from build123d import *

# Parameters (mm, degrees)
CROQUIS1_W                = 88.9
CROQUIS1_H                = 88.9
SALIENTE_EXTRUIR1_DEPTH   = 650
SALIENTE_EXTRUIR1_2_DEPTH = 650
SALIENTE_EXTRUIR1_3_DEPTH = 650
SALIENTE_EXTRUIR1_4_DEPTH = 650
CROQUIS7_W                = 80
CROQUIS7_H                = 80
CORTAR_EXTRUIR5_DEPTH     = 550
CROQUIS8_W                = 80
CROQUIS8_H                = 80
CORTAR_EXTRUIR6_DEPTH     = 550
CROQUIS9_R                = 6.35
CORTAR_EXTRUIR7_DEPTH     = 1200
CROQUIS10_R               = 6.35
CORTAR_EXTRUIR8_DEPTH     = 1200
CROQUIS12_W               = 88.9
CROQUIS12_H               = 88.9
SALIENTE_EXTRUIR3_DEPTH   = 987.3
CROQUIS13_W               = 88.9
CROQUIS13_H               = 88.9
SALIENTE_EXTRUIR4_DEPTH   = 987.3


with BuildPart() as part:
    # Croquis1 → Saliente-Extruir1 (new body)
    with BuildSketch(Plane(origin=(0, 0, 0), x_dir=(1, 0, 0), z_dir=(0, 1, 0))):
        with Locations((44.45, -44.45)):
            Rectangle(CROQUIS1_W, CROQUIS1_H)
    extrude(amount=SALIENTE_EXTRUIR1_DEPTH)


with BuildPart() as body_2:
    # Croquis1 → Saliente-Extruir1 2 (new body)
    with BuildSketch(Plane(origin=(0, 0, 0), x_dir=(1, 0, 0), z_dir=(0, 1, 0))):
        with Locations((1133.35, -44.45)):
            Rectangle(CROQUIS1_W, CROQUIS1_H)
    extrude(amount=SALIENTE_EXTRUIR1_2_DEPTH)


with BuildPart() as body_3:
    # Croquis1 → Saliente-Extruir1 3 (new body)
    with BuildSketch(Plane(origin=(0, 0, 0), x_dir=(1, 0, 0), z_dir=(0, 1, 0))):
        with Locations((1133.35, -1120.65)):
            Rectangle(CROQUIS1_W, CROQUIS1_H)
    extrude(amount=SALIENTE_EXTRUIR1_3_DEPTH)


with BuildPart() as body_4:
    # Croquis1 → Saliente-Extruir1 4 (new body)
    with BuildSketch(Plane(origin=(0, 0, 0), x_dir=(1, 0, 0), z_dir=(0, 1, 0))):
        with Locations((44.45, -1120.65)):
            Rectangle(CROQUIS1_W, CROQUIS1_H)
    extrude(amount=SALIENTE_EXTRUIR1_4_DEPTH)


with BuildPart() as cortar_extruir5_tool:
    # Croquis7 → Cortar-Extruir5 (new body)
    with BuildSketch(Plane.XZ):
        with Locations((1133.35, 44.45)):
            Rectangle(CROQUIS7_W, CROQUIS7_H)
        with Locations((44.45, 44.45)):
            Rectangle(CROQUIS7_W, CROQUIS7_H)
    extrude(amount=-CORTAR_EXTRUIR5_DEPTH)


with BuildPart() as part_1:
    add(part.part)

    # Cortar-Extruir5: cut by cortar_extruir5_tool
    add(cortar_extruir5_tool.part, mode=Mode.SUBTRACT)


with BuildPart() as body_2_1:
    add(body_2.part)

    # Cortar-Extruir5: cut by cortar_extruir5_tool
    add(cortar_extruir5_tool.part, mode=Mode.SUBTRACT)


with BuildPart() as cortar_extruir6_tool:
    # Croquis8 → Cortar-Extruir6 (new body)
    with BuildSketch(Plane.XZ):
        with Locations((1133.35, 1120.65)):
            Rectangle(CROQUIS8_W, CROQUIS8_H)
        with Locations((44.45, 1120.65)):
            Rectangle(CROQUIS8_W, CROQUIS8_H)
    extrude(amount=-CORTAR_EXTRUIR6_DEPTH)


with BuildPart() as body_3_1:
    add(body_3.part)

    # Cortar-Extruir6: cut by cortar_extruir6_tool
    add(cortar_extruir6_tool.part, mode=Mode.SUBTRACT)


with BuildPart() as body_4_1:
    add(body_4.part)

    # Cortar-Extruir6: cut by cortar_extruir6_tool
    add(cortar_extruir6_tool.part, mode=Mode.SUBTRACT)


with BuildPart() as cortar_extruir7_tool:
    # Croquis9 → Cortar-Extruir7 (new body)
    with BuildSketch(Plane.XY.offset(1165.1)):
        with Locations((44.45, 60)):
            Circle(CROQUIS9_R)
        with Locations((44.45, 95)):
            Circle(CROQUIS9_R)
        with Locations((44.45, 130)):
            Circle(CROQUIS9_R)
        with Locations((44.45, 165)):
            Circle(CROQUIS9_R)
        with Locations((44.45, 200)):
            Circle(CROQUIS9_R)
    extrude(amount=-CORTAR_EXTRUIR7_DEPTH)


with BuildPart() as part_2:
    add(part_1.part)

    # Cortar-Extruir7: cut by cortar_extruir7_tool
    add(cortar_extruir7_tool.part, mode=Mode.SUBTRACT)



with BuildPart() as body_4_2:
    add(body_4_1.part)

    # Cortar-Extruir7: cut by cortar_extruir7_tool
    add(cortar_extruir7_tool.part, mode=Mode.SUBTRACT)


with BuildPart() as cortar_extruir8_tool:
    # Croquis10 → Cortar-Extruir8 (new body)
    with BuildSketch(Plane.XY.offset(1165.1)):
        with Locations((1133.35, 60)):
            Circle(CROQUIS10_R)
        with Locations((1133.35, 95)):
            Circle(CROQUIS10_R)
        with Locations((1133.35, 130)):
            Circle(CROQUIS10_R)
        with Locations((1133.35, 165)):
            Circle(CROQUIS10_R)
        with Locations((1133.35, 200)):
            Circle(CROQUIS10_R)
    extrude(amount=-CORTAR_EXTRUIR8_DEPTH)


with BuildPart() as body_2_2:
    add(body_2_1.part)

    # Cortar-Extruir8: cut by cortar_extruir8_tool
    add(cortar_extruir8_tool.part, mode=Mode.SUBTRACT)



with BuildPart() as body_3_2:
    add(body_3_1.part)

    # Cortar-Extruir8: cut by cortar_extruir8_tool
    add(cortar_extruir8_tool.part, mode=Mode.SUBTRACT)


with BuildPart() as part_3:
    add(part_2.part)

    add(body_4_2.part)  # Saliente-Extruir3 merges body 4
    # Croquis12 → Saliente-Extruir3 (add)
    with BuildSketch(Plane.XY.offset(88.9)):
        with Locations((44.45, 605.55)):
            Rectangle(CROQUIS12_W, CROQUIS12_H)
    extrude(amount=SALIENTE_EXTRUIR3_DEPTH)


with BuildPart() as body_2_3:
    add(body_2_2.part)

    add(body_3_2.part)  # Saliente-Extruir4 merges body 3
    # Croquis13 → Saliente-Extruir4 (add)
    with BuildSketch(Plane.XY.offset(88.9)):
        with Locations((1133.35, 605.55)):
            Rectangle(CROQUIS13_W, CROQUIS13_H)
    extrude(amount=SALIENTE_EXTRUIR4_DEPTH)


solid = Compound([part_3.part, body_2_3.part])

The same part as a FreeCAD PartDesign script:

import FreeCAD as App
import Part
import Sketcher
from FreeCAD import Vector


def add_polygon(sketch, points):
    """Adds a closed chain of lines whose ends are joined by coincident constraints."""
    first, n = sketch.GeometryCount, len(points)
    for a, b in zip(points, points[1:] + points[:1]):
        sketch.addGeometry(Part.LineSegment(App.Vector(*a, 0), App.Vector(*b, 0)), False)
    for i in range(n):
        sketch.addConstraint(Sketcher.Constraint("Coincident", first + i, 2, first + (i + 1) % n, 1))

doc = App.newDocument("Part")
params = doc.addObject("Spreadsheet::Sheet", "Params")
for row, (alias, value) in enumerate([
    ("sketch1_width", "88.9 mm"),
    ("pad1_length", "650 mm"),
    ("sketch2_width", "88.9 mm"),
    ("pad2_length", "650 mm"),
    ("sketch3_width", "88.9 mm"),
    ("pad3_length", "650 mm"),
    ("sketch4_width", "88.9 mm"),
    ("pad4_length", "650 mm"),
    ("sketch5_width", "80 mm"),
    ("pad5_length", "550 mm"),
    ("sketch6_width", "80 mm"),
    ("pad6_length", "550 mm"),
    ("sketch7_diameter", "12.7 mm"),
    ("pad7_length", "1200 mm"),
    ("sketch8_diameter", "12.7 mm"),
    ("pad8_length", "1200 mm"),
    ("sketch9_width", "88.9 mm"),
    ("pad9_length", "987.3 mm"),
    ("sketch10_width", "88.9 mm"),
    ("pad10_length", "987.3 mm"),
], start=1):
    params.set(f"A{row}", alias)
    params.set(f"B{row}", "=" + value)
    params.setAlias(f"B{row}", alias)

body = doc.addObject("PartDesign::Body", "Body")

# Sketch on XZ plane
sketch1 = doc.addObject("Sketcher::SketchObject", "Sketch")
body.addObject(sketch1)
sketch1.AttachmentSupport = (doc.XZ_Plane, [""])
sketch1.MapMode = "FlatFace"
add_polygon(sketch1, [(0, 0), (0, 89), (89, 89), (89, 0)])  # lines 0-3
sketch1.addConstraint([
    Sketcher.Constraint("Vertical", 0),
    Sketcher.Constraint("Horizontal", 1),
    Sketcher.Constraint("Vertical", 2),
    Sketcher.Constraint("Horizontal", 3),
    Sketcher.Constraint("Coincident", 3, 2, -1, 1),
    Sketcher.Constraint("Equal", 3, 0),
    Sketcher.Constraint("DistanceX", 1, 1, 1, 2, 88.9),
])
sketch1.setExpression("Constraints[10]", "Params.sketch1_width")
pad1 = doc.addObject("PartDesign::Pad", "Pad")
body.addObject(pad1)
pad1.Profile = sketch1
pad1.setExpression("Length", "Params.pad1_length")
pad1.Reversed = True
body2 = doc.addObject("PartDesign::Body", "Body001")

# Sketch on XZ plane
sketch2 = doc.addObject("Sketcher::SketchObject", "Sketch001")
body2.addObject(sketch2)
sketch2.AttachmentSupport = (doc.getObject("XZ_Plane001"), [""])
sketch2.MapMode = "FlatFace"
add_polygon(sketch2, [(1089, 0), (1089, 89), (1178, 89), (1178, 0)])  # lines 0-3
sketch2.addConstraint([
    Sketcher.Constraint("Vertical", 0),
    Sketcher.Constraint("Horizontal", 1),
    Sketcher.Constraint("Vertical", 2),
    Sketcher.Constraint("Horizontal", 3),
    Sketcher.Constraint("PointOnObject", 2, 2, -1),
    Sketcher.Constraint("Equal", 3, 0),
    Sketcher.Constraint("DistanceX", 1, 1, 1, 2, 88.9),
    Sketcher.Constraint("DistanceX", -1, 1, 0, 2, 1088.9),
])
sketch2.setExpression("Constraints[10]", "Params.sketch2_width")
pad2 = doc.addObject("PartDesign::Pad", "Pad001")
body2.addObject(pad2)
pad2.Profile = sketch2
pad2.setExpression("Length", "Params.pad2_length")
pad2.Reversed = True
body3 = doc.addObject("PartDesign::Body", "Body002")

# Sketch on XZ plane
sketch3 = doc.addObject("Sketcher::SketchObject", "Sketch002")
body3.addObject(sketch3)
sketch3.AttachmentSupport = (doc.getObject("XZ_Plane002"), [""])
sketch3.MapMode = "FlatFace"
add_polygon(sketch3, [(1089, 1076), (1089, 1165), (1178, 1165), (1178, 1076)])  # lines 0-3
sketch3.addConstraint([
    Sketcher.Constraint("Vertical", 0),
    Sketcher.Constraint("Horizontal", 1),
    Sketcher.Constraint("Vertical", 2),
    Sketcher.Constraint("Horizontal", 3),
    Sketcher.Constraint("Equal", 3, 0),
    Sketcher.Constraint("DistanceX", 1, 1, 1, 2, 88.9),
    Sketcher.Constraint("DistanceX", -1, 1, 0, 2, 1088.9),
    Sketcher.Constraint("DistanceY", -1, 1, 0, 2, 1165.1),
])
sketch3.setExpression("Constraints[9]", "Params.sketch3_width")
pad3 = doc.addObject("PartDesign::Pad", "Pad002")
body3.addObject(pad3)
pad3.Profile = sketch3
pad3.setExpression("Length", "Params.pad3_length")
pad3.Reversed = True
body4 = doc.addObject("PartDesign::Body", "Body003")

# Sketch on XZ plane
sketch4 = doc.addObject("Sketcher::SketchObject", "Sketch003")
body4.addObject(sketch4)
sketch4.AttachmentSupport = (doc.getObject("XZ_Plane003"), [""])
sketch4.MapMode = "FlatFace"
add_polygon(sketch4, [(0, 1076), (0, 1165), (89, 1165), (89, 1076)])  # lines 0-3
sketch4.addConstraint([
    Sketcher.Constraint("Vertical", 0),
    Sketcher.Constraint("Horizontal", 1),
    Sketcher.Constraint("Vertical", 2),
    Sketcher.Constraint("Horizontal", 3),
    Sketcher.Constraint("PointOnObject", 0, 2, -2),
    Sketcher.Constraint("Equal", 3, 0),
    Sketcher.Constraint("DistanceX", 1, 1, 1, 2, 88.9),
    Sketcher.Constraint("DistanceY", -1, 1, 0, 2, 1165.1),
])
sketch4.setExpression("Constraints[10]", "Params.sketch4_width")
pad4 = doc.addObject("PartDesign::Pad", "Pad003")
body4.addObject(pad4)
pad4.Profile = sketch4
pad4.setExpression("Length", "Params.pad4_length")
pad4.Reversed = True
body5 = doc.addObject("PartDesign::Body", "Body004")
body5.AllowCompound = True

# Sketch on XZ plane
sketch5 = doc.addObject("Sketcher::SketchObject", "Sketch004")
body5.addObject(sketch5)
sketch5.AttachmentSupport = (doc.getObject("XZ_Plane004"), [""])
sketch5.MapMode = "FlatFace"
add_polygon(sketch5, [(1093, 84), (1093, 4), (1173, 4), (1173, 84)])  # lines 0-3
add_polygon(sketch5, [(4, 84), (4, 4), (84, 4), (84, 84)])  # lines 4-7
sketch5.addConstraint([
    Sketcher.Constraint("Vertical", 0),
    Sketcher.Constraint("Horizontal", 1),
    Sketcher.Constraint("Vertical", 2),
    Sketcher.Constraint("Horizontal", 3),
    Sketcher.Constraint("Vertical", 4),
    Sketcher.Constraint("Horizontal", 5),
    Sketcher.Constraint("Vertical", 6),
    Sketcher.Constraint("Horizontal", 7),
    Sketcher.Constraint("Horizontal", 1, 2, 4, 2),
    Sketcher.Constraint("Horizontal", 3, 2, 6, 2),
    Sketcher.Constraint("Equal", 3, 5),
    Sketcher.Constraint("Equal", 7, 0),
    Sketcher.Constraint("DistanceX", 1, 1, 1, 2, 80.0),
    Sketcher.Constraint("DistanceX", 4, 2, 0, 2, 1088.9),
    Sketcher.Constraint("DistanceX", -1, 1, 0, 2, 1093.35),
    Sketcher.Constraint("DistanceY", -1, 1, 0, 2, 4.45),
])
sketch5.setExpression("Constraints[20]", "Params.sketch5_width")
pad5 = doc.addObject("PartDesign::Pad", "Pad004")
body5.addObject(pad5)
pad5.Profile = sketch5
pad5.setExpression("Length", "Params.pad5_length")
pad5.Reversed = True
doc.recompute()

body6 = doc.addObject("PartDesign::Body", "Body005")
body6.BaseFeature = body5
boolean = doc.addObject("PartDesign::Boolean", "Boolean")
body.addObject(boolean)
boolean.Type = "Cut"
boolean.addObjects([body6])
doc.recompute()

boolean2 = doc.addObject("PartDesign::Boolean", "Boolean001")
body2.addObject(boolean2)
boolean2.Type = "Cut"
boolean2.addObjects([body5])
body7 = doc.addObject("PartDesign::Body", "Body006")
body7.AllowCompound = True

# Sketch on XZ plane
sketch6 = doc.addObject("Sketcher::SketchObject", "Sketch005")
body7.addObject(sketch6)
sketch6.AttachmentSupport = (doc.getObject("XZ_Plane006"), [""])
sketch6.MapMode = "FlatFace"
add_polygon(sketch6, [(1093, 1161), (1093, 1081), (1173, 1081), (1173, 1161)])  # lines 0-3
add_polygon(sketch6, [(4, 1161), (4, 1081), (84, 1081), (84, 1161)])  # lines 4-7
sketch6.addConstraint([
    Sketcher.Constraint("Vertical", 0),
    Sketcher.Constraint("Horizontal", 1),
    Sketcher.Constraint("Vertical", 2),
    Sketcher.Constraint("Horizontal", 3),
    Sketcher.Constraint("Vertical", 4),
    Sketcher.Constraint("Horizontal", 5),
    Sketcher.Constraint("Vertical", 6),
    Sketcher.Constraint("Horizontal", 7),
    Sketcher.Constraint("Horizontal", 1, 2, 4, 2),
    Sketcher.Constraint("Horizontal", 3, 2, 6, 2),
    Sketcher.Constraint("Equal", 3, 5),
    Sketcher.Constraint("Equal", 7, 0),
    Sketcher.Constraint("DistanceX", 1, 1, 1, 2, 80.0),
    Sketcher.Constraint("DistanceX", 4, 2, 0, 2, 1088.9),
    Sketcher.Constraint("DistanceX", -1, 1, 0, 2, 1093.35),
    Sketcher.Constraint("DistanceY", -1, 1, 0, 2, 1080.65),
])
sketch6.setExpression("Constraints[20]", "Params.sketch6_width")
pad6 = doc.addObject("PartDesign::Pad", "Pad005")
body7.addObject(pad6)
pad6.Profile = sketch6
pad6.setExpression("Length", "Params.pad6_length")
pad6.Reversed = True
doc.recompute()

body8 = doc.addObject("PartDesign::Body", "Body007")
body8.BaseFeature = body7
boolean3 = doc.addObject("PartDesign::Boolean", "Boolean002")
body3.addObject(boolean3)
boolean3.Type = "Cut"
boolean3.addObjects([body8])
doc.recompute()

boolean4 = doc.addObject("PartDesign::Boolean", "Boolean003")
body4.addObject(boolean4)
boolean4.Type = "Cut"
boolean4.addObjects([body7])
body9 = doc.addObject("PartDesign::Body", "Body008")
body9.AllowCompound = True

# Sketch on XY plane
sketch7 = doc.addObject("Sketcher::SketchObject", "Sketch006")
body9.addObject(sketch7)
sketch7.AttachmentSupport = (doc.getObject("XY_Plane008"), [""])
sketch7.MapMode = "FlatFace"
sketch7.AttachmentOffset = App.Placement(Vector(0, 0, 1165.1), App.Rotation())
sketch7.addGeometry([
    Part.Circle(Vector(44, 60, 0), Vector(0, 0, 1), 6),  # 0
    Part.Circle(Vector(44, 95, 0), Vector(0, 0, 1), 6),  # 1
    Part.Circle(Vector(44, 130, 0), Vector(0, 0, 1), 6),  # 2
    Part.Circle(Vector(44, 165, 0), Vector(0, 0, 1), 6),  # 3
    Part.Circle(Vector(44, 200, 0), Vector(0, 0, 1), 6),  # 4
], False)
sketch7.addConstraint([
    Sketcher.Constraint("Equal", 0, 1),
    Sketcher.Constraint("Equal", 1, 2),
    Sketcher.Constraint("Equal", 2, 3),
    Sketcher.Constraint("Equal", 3, 4),
    Sketcher.Constraint("Vertical", 0, 3, 1, 3),
    Sketcher.Constraint("Vertical", 1, 3, 2, 3),
    Sketcher.Constraint("Vertical", 2, 3, 3, 3),
    Sketcher.Constraint("Vertical", 3, 3, 4, 3),
    Sketcher.Constraint("Diameter", 0, 12.7),
    Sketcher.Constraint("DistanceY", -1, 1, 0, 3, 60.0),
    Sketcher.Constraint("DistanceY", -1, 1, 1, 3, 95.0),
    Sketcher.Constraint("DistanceY", -1, 1, 2, 3, 130.0),
    Sketcher.Constraint("DistanceY", -1, 1, 3, 3, 165.0),
    Sketcher.Constraint("DistanceY", -1, 1, 4, 3, 200.0),
    Sketcher.Constraint("DistanceX", -1, 1, 0, 3, 44.45),
])
sketch7.setExpression("Constraints[8]", "Params.sketch7_diameter")
pad7 = doc.addObject("PartDesign::Pad", "Pad006")
body9.addObject(pad7)
pad7.Profile = sketch7
pad7.setExpression("Length", "Params.pad7_length")
pad7.Reversed = True
doc.recompute()

body10 = doc.addObject("PartDesign::Body", "Body009")
body10.BaseFeature = body9
boolean5 = doc.addObject("PartDesign::Boolean", "Boolean004")
body.addObject(boolean5)
boolean5.Type = "Cut"
boolean5.addObjects([body10])
doc.recompute()

boolean6 = doc.addObject("PartDesign::Boolean", "Boolean005")
body4.addObject(boolean6)
boolean6.Type = "Cut"
boolean6.addObjects([body9])
body11 = doc.addObject("PartDesign::Body", "Body010")
body11.AllowCompound = True

# Sketch on XY plane
sketch8 = doc.addObject("Sketcher::SketchObject", "Sketch007")
body11.addObject(sketch8)
sketch8.AttachmentSupport = (doc.getObject("XY_Plane010"), [""])
sketch8.MapMode = "FlatFace"
sketch8.AttachmentOffset = App.Placement(Vector(0, 0, 1165.1), App.Rotation())
sketch8.addGeometry([
    Part.Circle(Vector(1133, 60, 0), Vector(0, 0, 1), 6),  # 0
    Part.Circle(Vector(1133, 95, 0), Vector(0, 0, 1), 6),  # 1
    Part.Circle(Vector(1133, 130, 0), Vector(0, 0, 1), 6),  # 2
    Part.Circle(Vector(1133, 165, 0), Vector(0, 0, 1), 6),  # 3
    Part.Circle(Vector(1133, 200, 0), Vector(0, 0, 1), 6),  # 4
], False)
sketch8.addConstraint([
    Sketcher.Constraint("Equal", 0, 1),
    Sketcher.Constraint("Equal", 1, 2),
    Sketcher.Constraint("Equal", 2, 3),
    Sketcher.Constraint("Equal", 3, 4),
    Sketcher.Constraint("Vertical", 0, 3, 1, 3),
    Sketcher.Constraint("Vertical", 1, 3, 2, 3),
    Sketcher.Constraint("Vertical", 2, 3, 3, 3),
    Sketcher.Constraint("Vertical", 3, 3, 4, 3),
    Sketcher.Constraint("Diameter", 0, 12.7),
    Sketcher.Constraint("DistanceY", -1, 1, 0, 3, 60.0),
    Sketcher.Constraint("DistanceY", -1, 1, 1, 3, 95.0),
    Sketcher.Constraint("DistanceY", -1, 1, 2, 3, 130.0),
    Sketcher.Constraint("DistanceY", -1, 1, 3, 3, 165.0),
    Sketcher.Constraint("DistanceY", -1, 1, 4, 3, 200.0),
    Sketcher.Constraint("DistanceX", -1, 1, 0, 3, 1133.35),
])
sketch8.setExpression("Constraints[8]", "Params.sketch8_diameter")
pad8 = doc.addObject("PartDesign::Pad", "Pad007")
body11.addObject(pad8)
pad8.Profile = sketch8
pad8.setExpression("Length", "Params.pad8_length")
pad8.Reversed = True
doc.recompute()

body12 = doc.addObject("PartDesign::Body", "Body011")
body12.BaseFeature = body11
boolean7 = doc.addObject("PartDesign::Boolean", "Boolean006")
body2.addObject(boolean7)
boolean7.Type = "Cut"
boolean7.addObjects([body12])
doc.recompute()

boolean8 = doc.addObject("PartDesign::Boolean", "Boolean007")
body3.addObject(boolean8)
boolean8.Type = "Cut"
boolean8.addObjects([body11])
body.AllowCompound = True
doc.recompute()

boolean9 = doc.addObject("PartDesign::Boolean", "Boolean008")
body.addObject(boolean9)
boolean9.Type = "Fuse"
boolean9.addObjects([body4])

# Sketch on XY plane
sketch9 = doc.addObject("Sketcher::SketchObject", "Sketch008")
body.addObject(sketch9)
sketch9.AttachmentSupport = (doc.XY_Plane, [""])
sketch9.MapMode = "FlatFace"
sketch9.AttachmentOffset = App.Placement(Vector(0, 0, 88.9), App.Rotation())
add_polygon(sketch9, [(0, 650), (0, 561), (89, 561), (89, 650)])  # lines 0-3
sketch9.addConstraint([
    Sketcher.Constraint("Vertical", 0),
    Sketcher.Constraint("Horizontal", 1),
    Sketcher.Constraint("Vertical", 2),
    Sketcher.Constraint("Horizontal", 3),
    Sketcher.Constraint("PointOnObject", 0, 2, -2),
    Sketcher.Constraint("Equal", 3, 0),
    Sketcher.Constraint("DistanceX", 1, 1, 1, 2, 88.9),
    Sketcher.Constraint("DistanceY", -1, 1, 2, 2, 650.0),
])
sketch9.setExpression("Constraints[10]", "Params.sketch9_width")
pad9 = doc.addObject("PartDesign::Pad", "Pad008")
body.addObject(pad9)
pad9.Profile = sketch9
pad9.setExpression("Length", "Params.pad9_length")
body2.AllowCompound = True
doc.recompute()

boolean10 = doc.addObject("PartDesign::Boolean", "Boolean009")
body2.addObject(boolean10)
boolean10.Type = "Fuse"
boolean10.addObjects([body3])

# Sketch on XY plane
sketch10 = doc.addObject("Sketcher::SketchObject", "Sketch009")
body2.addObject(sketch10)
sketch10.AttachmentSupport = (doc.getObject("XY_Plane001"), [""])
sketch10.MapMode = "FlatFace"
sketch10.AttachmentOffset = App.Placement(Vector(0, 0, 88.9), App.Rotation())
add_polygon(sketch10, [(1089, 650), (1089, 561), (1178, 561), (1178, 650)])  # lines 0-3
sketch10.addConstraint([
    Sketcher.Constraint("Vertical", 0),
    Sketcher.Constraint("Horizontal", 1),
    Sketcher.Constraint("Vertical", 2),
    Sketcher.Constraint("Horizontal", 3),
    Sketcher.Constraint("Equal", 3, 0),
    Sketcher.Constraint("DistanceX", 1, 1, 1, 2, 88.9),
    Sketcher.Constraint("DistanceY", -1, 1, 2, 2, 650.0),
    Sketcher.Constraint("DistanceX", -1, 1, 0, 2, 1088.9),
])
sketch10.setExpression("Constraints[9]", "Params.sketch10_width")
pad10 = doc.addObject("PartDesign::Pad", "Pad009")
body2.addObject(pad10)
pad10.Profile = sketch10
pad10.setExpression("Length", "Params.pad10_length")

doc.recompute()
